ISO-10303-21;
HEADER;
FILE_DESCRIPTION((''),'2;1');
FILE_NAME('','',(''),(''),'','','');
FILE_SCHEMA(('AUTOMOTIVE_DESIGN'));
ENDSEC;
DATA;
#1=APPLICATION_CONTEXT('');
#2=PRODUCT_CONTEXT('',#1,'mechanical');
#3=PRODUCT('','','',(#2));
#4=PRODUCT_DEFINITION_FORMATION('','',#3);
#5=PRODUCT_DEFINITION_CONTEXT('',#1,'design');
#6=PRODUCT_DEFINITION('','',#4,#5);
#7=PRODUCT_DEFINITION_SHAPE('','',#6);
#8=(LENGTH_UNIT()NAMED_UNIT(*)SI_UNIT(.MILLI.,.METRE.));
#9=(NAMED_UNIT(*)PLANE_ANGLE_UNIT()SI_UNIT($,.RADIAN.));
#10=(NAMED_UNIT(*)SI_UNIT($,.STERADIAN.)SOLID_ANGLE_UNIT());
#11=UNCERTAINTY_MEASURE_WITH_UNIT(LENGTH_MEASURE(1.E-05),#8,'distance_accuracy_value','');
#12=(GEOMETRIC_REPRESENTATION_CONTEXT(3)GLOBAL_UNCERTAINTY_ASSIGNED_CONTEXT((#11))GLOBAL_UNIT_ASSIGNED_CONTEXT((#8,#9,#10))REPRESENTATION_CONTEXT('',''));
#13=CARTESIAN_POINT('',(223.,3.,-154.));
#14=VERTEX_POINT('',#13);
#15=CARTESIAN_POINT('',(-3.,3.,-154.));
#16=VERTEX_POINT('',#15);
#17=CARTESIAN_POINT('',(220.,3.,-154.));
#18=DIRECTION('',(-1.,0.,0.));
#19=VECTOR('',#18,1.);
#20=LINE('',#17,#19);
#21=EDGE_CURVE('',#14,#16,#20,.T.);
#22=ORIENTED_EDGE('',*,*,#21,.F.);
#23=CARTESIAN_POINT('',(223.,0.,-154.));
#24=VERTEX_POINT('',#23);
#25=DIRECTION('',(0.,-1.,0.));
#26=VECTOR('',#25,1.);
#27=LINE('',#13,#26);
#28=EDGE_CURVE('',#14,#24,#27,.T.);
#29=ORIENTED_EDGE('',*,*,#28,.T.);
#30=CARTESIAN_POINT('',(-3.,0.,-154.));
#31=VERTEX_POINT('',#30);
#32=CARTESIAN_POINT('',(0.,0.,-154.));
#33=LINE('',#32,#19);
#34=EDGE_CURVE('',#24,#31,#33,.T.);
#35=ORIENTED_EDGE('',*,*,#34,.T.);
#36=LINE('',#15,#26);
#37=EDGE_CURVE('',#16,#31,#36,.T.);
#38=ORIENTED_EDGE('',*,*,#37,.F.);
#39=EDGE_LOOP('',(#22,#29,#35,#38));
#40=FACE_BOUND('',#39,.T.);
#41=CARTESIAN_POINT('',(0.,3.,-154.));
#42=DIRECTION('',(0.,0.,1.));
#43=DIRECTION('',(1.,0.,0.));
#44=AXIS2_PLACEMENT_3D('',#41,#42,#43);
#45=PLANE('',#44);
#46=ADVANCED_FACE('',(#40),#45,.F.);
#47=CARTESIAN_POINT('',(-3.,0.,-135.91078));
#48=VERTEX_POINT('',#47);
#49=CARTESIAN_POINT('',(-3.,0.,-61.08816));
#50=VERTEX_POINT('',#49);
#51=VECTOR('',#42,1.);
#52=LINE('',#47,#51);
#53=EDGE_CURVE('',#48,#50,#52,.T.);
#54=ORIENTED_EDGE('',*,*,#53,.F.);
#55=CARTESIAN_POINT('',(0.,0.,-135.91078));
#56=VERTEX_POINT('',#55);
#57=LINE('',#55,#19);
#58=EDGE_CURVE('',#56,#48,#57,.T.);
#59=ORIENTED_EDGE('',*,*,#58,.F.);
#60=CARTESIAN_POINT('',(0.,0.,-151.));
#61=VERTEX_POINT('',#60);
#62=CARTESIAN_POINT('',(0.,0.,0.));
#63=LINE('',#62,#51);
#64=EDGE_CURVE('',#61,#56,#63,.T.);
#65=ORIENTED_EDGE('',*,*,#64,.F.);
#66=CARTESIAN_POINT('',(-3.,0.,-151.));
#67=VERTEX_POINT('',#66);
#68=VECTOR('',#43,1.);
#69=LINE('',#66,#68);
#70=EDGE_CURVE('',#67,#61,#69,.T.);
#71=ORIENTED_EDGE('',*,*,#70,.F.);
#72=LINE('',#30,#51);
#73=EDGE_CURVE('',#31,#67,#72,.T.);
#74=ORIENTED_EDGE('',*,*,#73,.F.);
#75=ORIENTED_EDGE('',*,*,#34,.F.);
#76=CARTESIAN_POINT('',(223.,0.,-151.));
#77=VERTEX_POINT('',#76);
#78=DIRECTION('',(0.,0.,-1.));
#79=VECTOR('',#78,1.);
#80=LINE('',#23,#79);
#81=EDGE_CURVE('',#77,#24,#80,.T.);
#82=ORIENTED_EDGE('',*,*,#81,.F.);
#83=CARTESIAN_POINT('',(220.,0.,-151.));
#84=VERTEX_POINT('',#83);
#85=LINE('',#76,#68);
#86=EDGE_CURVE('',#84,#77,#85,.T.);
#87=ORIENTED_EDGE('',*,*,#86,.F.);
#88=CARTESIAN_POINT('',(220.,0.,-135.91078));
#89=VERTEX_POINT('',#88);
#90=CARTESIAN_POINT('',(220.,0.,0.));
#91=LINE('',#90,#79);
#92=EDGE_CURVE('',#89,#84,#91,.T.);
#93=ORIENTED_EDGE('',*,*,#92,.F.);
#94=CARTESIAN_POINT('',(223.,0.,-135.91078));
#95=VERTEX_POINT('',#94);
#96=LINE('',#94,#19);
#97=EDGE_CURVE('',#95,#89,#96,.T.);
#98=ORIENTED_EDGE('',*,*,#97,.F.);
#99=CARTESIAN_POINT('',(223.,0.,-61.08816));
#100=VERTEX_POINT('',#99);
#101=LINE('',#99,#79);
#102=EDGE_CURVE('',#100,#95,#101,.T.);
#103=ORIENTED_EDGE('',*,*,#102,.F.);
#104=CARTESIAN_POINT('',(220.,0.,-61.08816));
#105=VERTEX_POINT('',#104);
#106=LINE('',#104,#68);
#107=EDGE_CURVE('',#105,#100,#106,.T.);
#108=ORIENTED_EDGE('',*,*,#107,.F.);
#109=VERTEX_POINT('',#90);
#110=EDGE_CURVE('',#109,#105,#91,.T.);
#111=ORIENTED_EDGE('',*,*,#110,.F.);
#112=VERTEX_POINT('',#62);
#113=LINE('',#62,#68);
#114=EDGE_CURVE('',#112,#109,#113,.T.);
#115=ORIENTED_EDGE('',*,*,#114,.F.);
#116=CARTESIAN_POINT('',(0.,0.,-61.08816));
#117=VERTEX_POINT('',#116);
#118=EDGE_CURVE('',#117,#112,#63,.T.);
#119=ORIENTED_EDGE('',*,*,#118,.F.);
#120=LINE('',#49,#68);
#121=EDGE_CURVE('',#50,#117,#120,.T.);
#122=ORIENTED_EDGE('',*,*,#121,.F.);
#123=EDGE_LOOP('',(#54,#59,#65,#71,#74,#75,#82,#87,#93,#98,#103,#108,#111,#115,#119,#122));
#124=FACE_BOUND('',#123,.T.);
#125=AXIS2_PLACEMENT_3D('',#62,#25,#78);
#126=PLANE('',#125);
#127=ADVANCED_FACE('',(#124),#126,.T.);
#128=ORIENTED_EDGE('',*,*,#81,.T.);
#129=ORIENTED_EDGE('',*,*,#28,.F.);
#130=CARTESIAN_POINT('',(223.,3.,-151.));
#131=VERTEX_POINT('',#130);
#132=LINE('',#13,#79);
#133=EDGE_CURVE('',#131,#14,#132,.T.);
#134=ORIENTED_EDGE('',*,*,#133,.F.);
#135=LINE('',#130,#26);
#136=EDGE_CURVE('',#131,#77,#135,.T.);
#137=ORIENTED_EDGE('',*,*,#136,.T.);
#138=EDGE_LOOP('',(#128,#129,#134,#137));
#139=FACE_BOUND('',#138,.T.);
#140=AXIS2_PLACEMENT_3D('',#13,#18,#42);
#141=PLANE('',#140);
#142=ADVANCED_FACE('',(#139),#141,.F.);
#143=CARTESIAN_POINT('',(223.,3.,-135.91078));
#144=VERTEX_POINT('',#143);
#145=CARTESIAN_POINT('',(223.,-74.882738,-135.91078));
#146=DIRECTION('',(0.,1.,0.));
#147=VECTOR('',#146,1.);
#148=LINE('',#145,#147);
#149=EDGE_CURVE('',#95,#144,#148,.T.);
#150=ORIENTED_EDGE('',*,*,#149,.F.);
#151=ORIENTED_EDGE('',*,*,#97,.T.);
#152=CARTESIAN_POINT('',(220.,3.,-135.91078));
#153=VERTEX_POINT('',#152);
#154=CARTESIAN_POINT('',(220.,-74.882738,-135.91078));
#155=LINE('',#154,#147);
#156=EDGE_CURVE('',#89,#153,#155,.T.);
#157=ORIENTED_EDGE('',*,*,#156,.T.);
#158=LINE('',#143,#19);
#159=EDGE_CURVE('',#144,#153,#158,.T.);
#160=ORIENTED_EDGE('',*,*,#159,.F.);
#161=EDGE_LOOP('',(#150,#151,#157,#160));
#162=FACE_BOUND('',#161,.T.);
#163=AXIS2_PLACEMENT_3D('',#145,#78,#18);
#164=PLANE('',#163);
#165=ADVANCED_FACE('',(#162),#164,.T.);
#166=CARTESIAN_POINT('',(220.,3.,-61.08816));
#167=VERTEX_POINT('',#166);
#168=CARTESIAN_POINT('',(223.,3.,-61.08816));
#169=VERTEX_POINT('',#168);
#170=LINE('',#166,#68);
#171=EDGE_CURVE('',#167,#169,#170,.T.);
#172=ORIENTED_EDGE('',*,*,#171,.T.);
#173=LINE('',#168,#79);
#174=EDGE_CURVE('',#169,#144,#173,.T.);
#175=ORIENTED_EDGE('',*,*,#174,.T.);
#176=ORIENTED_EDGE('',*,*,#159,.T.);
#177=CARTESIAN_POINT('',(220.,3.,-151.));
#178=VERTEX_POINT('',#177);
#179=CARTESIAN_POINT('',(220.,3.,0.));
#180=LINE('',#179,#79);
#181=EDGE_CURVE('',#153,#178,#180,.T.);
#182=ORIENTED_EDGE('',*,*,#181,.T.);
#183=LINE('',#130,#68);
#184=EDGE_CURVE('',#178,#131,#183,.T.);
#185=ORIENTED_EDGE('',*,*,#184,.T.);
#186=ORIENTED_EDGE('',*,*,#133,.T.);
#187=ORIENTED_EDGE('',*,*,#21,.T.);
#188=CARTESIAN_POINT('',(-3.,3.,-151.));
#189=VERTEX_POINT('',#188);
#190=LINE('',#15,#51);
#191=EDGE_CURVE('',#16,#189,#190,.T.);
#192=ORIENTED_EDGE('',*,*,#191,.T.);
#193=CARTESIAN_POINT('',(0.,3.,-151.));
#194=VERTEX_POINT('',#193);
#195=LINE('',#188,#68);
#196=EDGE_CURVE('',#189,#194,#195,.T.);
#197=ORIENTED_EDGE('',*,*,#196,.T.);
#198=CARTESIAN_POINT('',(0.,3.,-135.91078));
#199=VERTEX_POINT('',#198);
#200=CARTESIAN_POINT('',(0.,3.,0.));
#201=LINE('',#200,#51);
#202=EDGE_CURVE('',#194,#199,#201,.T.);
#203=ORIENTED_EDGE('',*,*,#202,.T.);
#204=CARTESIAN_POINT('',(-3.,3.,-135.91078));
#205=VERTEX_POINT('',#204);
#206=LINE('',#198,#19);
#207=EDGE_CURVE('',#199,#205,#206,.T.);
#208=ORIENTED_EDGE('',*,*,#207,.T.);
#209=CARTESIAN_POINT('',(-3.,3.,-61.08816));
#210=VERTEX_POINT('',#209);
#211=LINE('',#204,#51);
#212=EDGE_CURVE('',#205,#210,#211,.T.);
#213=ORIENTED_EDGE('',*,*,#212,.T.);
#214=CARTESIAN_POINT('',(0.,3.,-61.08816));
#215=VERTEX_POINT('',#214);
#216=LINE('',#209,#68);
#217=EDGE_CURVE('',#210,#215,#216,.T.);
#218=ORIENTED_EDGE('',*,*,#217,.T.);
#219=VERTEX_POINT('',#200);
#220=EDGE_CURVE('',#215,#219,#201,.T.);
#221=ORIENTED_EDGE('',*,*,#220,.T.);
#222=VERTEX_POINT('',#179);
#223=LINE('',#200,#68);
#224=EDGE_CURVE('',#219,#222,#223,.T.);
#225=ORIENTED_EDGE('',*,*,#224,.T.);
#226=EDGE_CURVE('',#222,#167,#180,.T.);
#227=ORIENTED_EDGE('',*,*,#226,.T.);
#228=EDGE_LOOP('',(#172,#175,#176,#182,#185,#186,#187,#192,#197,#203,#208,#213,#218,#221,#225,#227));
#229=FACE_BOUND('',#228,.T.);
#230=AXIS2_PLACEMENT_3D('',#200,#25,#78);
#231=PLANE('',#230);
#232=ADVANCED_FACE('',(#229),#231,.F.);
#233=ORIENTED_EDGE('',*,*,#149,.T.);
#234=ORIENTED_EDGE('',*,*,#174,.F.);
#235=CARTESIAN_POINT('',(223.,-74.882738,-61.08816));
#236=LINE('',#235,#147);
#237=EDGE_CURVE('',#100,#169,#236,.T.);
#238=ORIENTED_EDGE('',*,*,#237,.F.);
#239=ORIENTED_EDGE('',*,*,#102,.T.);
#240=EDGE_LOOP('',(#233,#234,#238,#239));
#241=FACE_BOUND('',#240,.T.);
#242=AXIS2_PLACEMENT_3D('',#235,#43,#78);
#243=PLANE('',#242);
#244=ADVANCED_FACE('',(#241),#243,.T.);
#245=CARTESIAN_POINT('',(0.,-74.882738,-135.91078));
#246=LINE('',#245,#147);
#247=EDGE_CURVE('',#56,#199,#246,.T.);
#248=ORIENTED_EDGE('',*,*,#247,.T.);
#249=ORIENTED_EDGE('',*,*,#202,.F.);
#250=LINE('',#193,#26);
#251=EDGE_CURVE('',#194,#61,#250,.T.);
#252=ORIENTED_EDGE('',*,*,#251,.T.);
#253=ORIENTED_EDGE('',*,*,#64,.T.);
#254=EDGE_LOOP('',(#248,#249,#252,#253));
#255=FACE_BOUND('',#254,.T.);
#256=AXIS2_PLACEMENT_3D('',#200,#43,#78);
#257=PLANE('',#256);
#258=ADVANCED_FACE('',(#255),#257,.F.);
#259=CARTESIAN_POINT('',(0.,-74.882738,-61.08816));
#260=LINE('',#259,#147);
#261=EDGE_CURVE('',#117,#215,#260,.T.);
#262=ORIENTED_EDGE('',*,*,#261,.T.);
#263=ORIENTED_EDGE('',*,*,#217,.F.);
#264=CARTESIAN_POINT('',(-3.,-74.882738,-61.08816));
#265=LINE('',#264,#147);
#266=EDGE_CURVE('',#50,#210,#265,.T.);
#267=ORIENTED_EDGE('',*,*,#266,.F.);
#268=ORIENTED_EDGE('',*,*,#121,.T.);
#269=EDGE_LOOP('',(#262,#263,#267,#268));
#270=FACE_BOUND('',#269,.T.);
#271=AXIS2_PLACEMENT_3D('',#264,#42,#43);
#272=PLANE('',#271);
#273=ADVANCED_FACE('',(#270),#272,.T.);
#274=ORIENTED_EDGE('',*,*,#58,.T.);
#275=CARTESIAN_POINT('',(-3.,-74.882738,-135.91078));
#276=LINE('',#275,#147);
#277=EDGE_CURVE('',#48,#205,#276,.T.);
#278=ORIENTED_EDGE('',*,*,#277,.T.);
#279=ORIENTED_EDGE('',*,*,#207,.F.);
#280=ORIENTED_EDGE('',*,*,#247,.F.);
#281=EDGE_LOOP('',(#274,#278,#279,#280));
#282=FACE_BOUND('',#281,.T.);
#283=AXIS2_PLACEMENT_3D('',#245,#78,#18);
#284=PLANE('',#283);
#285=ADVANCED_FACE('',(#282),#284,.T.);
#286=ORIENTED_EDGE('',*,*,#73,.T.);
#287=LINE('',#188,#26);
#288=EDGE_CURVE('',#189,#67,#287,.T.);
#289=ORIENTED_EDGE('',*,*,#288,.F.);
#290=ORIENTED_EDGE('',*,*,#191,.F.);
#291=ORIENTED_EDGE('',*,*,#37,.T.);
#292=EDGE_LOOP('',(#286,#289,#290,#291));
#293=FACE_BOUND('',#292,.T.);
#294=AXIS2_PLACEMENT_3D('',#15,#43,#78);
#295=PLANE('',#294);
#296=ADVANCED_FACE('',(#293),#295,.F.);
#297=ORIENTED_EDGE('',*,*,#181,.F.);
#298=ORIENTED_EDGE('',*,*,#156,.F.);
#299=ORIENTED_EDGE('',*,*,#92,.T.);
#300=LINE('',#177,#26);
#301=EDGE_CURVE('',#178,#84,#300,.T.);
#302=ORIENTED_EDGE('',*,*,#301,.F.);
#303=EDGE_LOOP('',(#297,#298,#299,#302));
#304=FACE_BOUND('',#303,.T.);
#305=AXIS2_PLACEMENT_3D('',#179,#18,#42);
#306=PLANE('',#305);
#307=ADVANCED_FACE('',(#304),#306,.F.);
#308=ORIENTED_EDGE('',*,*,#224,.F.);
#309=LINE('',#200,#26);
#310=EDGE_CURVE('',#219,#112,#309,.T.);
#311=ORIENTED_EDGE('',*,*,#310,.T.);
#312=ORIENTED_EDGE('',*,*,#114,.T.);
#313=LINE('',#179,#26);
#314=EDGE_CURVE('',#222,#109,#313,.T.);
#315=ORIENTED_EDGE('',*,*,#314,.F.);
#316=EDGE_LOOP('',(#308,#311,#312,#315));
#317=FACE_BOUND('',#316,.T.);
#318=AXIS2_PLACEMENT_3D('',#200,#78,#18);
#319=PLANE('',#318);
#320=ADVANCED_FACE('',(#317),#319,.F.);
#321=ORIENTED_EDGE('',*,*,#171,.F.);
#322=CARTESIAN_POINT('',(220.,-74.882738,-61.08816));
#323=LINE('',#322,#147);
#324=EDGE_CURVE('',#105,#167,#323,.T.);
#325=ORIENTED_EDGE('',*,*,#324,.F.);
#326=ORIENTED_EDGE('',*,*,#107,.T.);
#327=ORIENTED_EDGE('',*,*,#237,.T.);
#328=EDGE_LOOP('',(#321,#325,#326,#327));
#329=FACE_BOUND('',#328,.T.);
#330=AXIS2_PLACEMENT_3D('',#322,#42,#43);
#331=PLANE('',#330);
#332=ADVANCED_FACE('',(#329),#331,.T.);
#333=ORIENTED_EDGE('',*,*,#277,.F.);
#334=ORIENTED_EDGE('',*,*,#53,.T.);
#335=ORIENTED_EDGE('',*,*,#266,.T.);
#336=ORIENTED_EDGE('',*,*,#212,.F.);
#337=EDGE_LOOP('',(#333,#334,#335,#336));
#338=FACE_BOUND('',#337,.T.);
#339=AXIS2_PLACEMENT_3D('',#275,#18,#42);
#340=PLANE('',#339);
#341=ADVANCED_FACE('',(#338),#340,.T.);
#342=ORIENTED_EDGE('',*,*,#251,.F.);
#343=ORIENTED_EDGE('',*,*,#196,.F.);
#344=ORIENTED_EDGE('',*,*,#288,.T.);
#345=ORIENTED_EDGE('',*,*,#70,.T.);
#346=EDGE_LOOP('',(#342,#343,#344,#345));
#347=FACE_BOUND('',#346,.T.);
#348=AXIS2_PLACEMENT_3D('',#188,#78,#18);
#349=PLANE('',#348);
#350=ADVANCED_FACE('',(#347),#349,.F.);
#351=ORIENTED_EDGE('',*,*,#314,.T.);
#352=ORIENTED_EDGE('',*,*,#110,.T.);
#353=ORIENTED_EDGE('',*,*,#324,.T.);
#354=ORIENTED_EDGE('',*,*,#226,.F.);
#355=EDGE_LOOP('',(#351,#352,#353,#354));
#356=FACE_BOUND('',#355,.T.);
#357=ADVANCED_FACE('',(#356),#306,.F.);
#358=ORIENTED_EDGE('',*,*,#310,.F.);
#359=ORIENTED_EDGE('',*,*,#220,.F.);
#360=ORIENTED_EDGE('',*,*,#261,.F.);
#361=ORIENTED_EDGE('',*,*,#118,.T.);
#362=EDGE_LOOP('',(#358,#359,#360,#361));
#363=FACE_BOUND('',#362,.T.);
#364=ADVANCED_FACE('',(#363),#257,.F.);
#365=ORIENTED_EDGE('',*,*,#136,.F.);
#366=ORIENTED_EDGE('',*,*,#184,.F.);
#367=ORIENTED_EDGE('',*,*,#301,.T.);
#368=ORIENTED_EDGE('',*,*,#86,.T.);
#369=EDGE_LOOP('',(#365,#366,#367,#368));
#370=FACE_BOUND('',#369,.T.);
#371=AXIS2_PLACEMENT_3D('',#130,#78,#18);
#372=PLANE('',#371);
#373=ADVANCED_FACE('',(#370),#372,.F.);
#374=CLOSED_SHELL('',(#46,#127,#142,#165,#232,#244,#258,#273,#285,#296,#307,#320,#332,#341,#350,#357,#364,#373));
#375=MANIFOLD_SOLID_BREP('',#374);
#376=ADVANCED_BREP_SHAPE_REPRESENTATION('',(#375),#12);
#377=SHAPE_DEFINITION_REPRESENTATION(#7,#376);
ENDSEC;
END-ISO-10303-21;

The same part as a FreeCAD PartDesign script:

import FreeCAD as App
import Part
import Sketcher

V = App.Vector
Q = App.Units.Quantity

doc = App.newDocument("Part")
body = doc.addObject("PartDesign::Body", "Body")

# Sketch on XZ plane
sketch1 = body.newObject("Sketcher::SketchObject", "Sketch")
sketch1.AttachmentSupport = (doc.getObject("XZ_Plane"), [""])
sketch1.MapMode = "FlatFace"
sketch1.addGeometry(Part.LineSegment(V(-3, -154, 0), V(-3, -151, 0)), False)
sketch1.addGeometry(Part.LineSegment(V(-3, -151, 0), V(0, -151, 0)), False)
sketch1.addGeometry(Part.LineSegment(V(0, -151, 0), V(0, 0, 0)), False)
sketch1.addGeometry(Part.LineSegment(V(0, 0, 0), V(220, 0, 0)), False)
sketch1.addGeometry(Part.LineSegment(V(220, 0, 0), V(220, -151, 0)), False)
sketch1.addGeometry(Part.LineSegment(V(220, -151, 0), V(223, -151, 0)), False)
sketch1.addGeometry(Part.LineSegment(V(223, -151, 0), V(223, -154, 0)), False)
sketch1.addGeometry(Part.LineSegment(V(223, -154, 0), V(-3, -154, 0)), False)
sketch1.addConstraint(Sketcher.Constraint("Coincident", 0, 2, 1, 1))
sketch1.addConstraint(Sketcher.Constraint("Coincident", 1, 2, 2, 1))
sketch1.addConstraint(Sketcher.Constraint("Coincident", 2, 2, 3, 1))
sketch1.addConstraint(Sketcher.Constraint("Coincident", 3, 2, 4, 1))
sketch1.addConstraint(Sketcher.Constraint("Coincident", 4, 2, 5, 1))
sketch1.addConstraint(Sketcher.Constraint("Coincident", 5, 2, 6, 1))
sketch1.addConstraint(Sketcher.Constraint("Coincident", 6, 2, 7, 1))
sketch1.addConstraint(Sketcher.Constraint("Coincident", 7, 2, 0, 1))
sketch1.addConstraint(Sketcher.Constraint("Vertical", 0))
sketch1.addConstraint(Sketcher.Constraint("Horizontal", 1))
sketch1.addConstraint(Sketcher.Constraint("Vertical", 2))
sketch1.addConstraint(Sketcher.Constraint("Horizontal", 3))
sketch1.addConstraint(Sketcher.Constraint("Vertical", 4))
sketch1.addConstraint(Sketcher.Constraint("Horizontal", 5))
sketch1.addConstraint(Sketcher.Constraint("Vertical", 6))
sketch1.addConstraint(Sketcher.Constraint("Horizontal", 7))
sketch1.addConstraint(Sketcher.Constraint("Coincident", 2, 2, -1, 1))
sketch1.addConstraint(Sketcher.Constraint("Horizontal", 1, 2, 4, 2))
sketch1.addConstraint(Sketcher.Constraint("Equal", 1, 5))
sketch1.addConstraint(Sketcher.Constraint("Equal", 5, 0))
sketch1.addConstraint(Sketcher.Constraint("DistanceX", 1, 1, 1, 2, Q("3 mm")))
sketch1.addConstraint(Sketcher.Constraint("DistanceX", 3, 1, 3, 2, Q("220 mm")))
sketch1.addConstraint(Sketcher.Constraint("DistanceY", 2, 1, 2, 2, Q("151 mm")))
pad1 = body.newObject("PartDesign::Pad", "Pad")
pad1.Profile = sketch1
pad1.Length = 3
pad1.Reversed = True

# Sketch on XZ plane
sketch2 = body.newObject("Sketcher::SketchObject", "Sketch001")
sketch2.AttachmentSupport = (doc.getObject("XZ_Plane"), [""])
sketch2.MapMode = "FlatFace"
sketch2.AttachmentOffset = App.Placement(V(0, 0, -3), App.Rotation())
sketch2.addGeometry(Part.LineSegment(V(-3, -135.9, 0), V(-3, -61.1, 0)), False)
sketch2.addGeometry(Part.LineSegment(V(-3, -61.1, 0), V(0, -61.1, 0)), False)
sketch2.addGeometry(Part.LineSegment(V(0, -61.1, 0), V(0, -135.9, 0)), False)
sketch2.addGeometry(Part.LineSegment(V(0, -135.9, 0), V(-3, -135.9, 0)), False)
sketch2.addGeometry(Part.LineSegment(V(220, -135.9, 0), V(220, -61.1, 0)), False)
sketch2.addGeometry(Part.LineSegment(V(220, -61.1, 0), V(223, -61.1, 0)), False)
sketch2.addGeometry(Part.LineSegment(V(223, -61.1, 0), V(223, -135.9, 0)), False)
sketch2.addGeometry(Part.LineSegment(V(223, -135.9, 0), V(220, -135.9, 0)), False)
sketch2.addConstraint(Sketcher.Constraint("Coincident", 0, 2, 1, 1))
sketch2.addConstraint(Sketcher.Constraint("Coincident", 1, 2, 2, 1))
sketch2.addConstraint(Sketcher.Constraint("Coincident", 2, 2, 3, 1))
sketch2.addConstraint(Sketcher.Constraint("Coincident", 3, 2, 0, 1))
sketch2.addConstraint(Sketcher.Constraint("Coincident", 4, 2, 5, 1))
sketch2.addConstraint(Sketcher.Constraint("Coincident", 5, 2, 6, 1))
sketch2.addConstraint(Sketcher.Constraint("Coincident", 6, 2, 7, 1))
sketch2.addConstraint(Sketcher.Constraint("Coincident", 7, 2, 4, 1))
sketch2.addConstraint(Sketcher.Constraint("Vertical", 0))
sketch2.addConstraint(Sketcher.Constraint("Horizontal", 1))
sketch2.addConstraint(Sketcher.Constraint("Vertical", 2))
sketch2.addConstraint(Sketcher.Constraint("Horizontal", 3))
sketch2.addConstraint(Sketcher.Constraint("Vertical", 4))
sketch2.addConstraint(Sketcher.Constraint("Horizontal", 5))
sketch2.addConstraint(Sketcher.Constraint("Vertical", 6))
sketch2.addConstraint(Sketcher.Constraint("Horizontal", 7))
sketch2.addConstraint(Sketcher.Constraint("PointOnObject", 1, 2, -2))
sketch2.addConstraint(Sketcher.Constraint("Horizontal", 1, 2, 4, 2))
sketch2.addConstraint(Sketcher.Constraint("Horizontal", 3, 2, 6, 2))
sketch2.addConstraint(Sketcher.Constraint("Equal", 3, 5))
sketch2.addConstraint(Sketcher.Constraint("DistanceX", 1, 1, 1, 2, Q("3 mm")))
sketch2.addConstraint(Sketcher.Constraint("DistanceX", -1, 1, 4, 2, Q("220 mm")))
sketch2.addConstraint(Sketcher.Constraint("DistanceY", 0, 1, 0, 2, Q("74.82262 mm")))
sketch2.addConstraint(Sketcher.Constraint("DistanceY", 0, 2, -1, 1, Q("61.08816 mm")))
pad2 = body.newObject("PartDesign::Pad", "Pad001")
pad2.Profile = sketch2
pad2.Length = 3

doc.recompute()
